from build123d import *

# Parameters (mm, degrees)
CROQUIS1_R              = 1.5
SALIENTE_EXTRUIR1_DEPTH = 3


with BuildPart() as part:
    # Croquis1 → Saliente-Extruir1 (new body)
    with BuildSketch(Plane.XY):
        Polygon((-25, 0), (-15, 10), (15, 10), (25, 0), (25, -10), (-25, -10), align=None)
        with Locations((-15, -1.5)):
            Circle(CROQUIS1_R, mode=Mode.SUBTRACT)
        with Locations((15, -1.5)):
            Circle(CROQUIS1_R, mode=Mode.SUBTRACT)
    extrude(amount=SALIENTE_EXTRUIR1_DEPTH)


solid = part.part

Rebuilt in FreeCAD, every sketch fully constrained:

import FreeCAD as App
import Part
import Sketcher


def add_polygon(sketch, points):
    """Adds a closed chain of lines whose ends are joined by coincident constraints."""
    first, n = sketch.GeometryCount, len(points)
    for a, b in zip(points, points[1:] + points[:1]):
        sketch.addGeometry(Part.LineSegment(App.Vector(*a, 0), App.Vector(*b, 0)), False)
    for i in range(n):
        sketch.addConstraint(Sketcher.Constraint("Coincident", first + i, 2, first + (i + 1) % n, 1))

doc = App.newDocument("Part")
body = doc.addObject("PartDesign::Body", "Body")

# Sketch on XY plane
sketch1 = body.newObject("Sketcher::SketchObject", "Sketch")
sketch1.AttachmentSupport = (doc.getObject("XY_Plane"), [""])
sketch1.MapMode = "FlatFace"
add_polygon(sketch1, [(-15, 10), (-25, 0), (-25, -10), (25, -10), (25, 0), (15, 10)])  # lines 0-5
sketch1.addGeometry(Part.Circle(App.Vector(15, -1.5, 0), App.Vector(0, 0, 1), 1.5), False)  # 6
sketch1.addGeometry(Part.Circle(App.Vector(-15, -1.5, 0), App.Vector(0, 0, 1), 1.5), False)  # 7
sketch1.addConstraint(Sketcher.Constraint("Vertical", 1))
sketch1.addConstraint(Sketcher.Constraint("Horizontal", 2))
sketch1.addConstraint(Sketcher.Constraint("Vertical", 3))
sketch1.addConstraint(Sketcher.Constraint("Horizontal", 5))
sketch1.addConstraint(Sketcher.Constraint("Equal", 6, 7))
sketch1.addConstraint(Sketcher.Constraint("Symmetric", 0, 2, 3, 2, -1, 1))
sketch1.addConstraint(Sketcher.Constraint("Symmetric", 6, 3, 7, 3, -2))
sketch1.addConstraint(Sketcher.Constraint("PointOnObject", 0, 2, -1))
sketch1.addConstraint(Sketcher.Constraint("Perpendicular", 0, 4))
sketch1.addConstraint(Sketcher.Constraint("Vertical", 6, 3, 4, 2))
sketch1.addConstraint(Sketcher.Constraint("Vertical", 7, 3, 5, 2))
sketch1.addConstraint(Sketcher.Constraint("Diameter", 6, 3.0))
sketch1.addConstraint(Sketcher.Constraint("DistanceX", 2, 1, 2, 2, 50.0))
sketch1.addConstraint(Sketcher.Constraint("DistanceX", 5, 2, 5, 1, 30.0))
sketch1.addConstraint(Sketcher.Constraint("DistanceY", 1, 2, 1, 1, 10.0))
sketch1.addConstraint(Sketcher.Constraint("DistanceY", 6, 3, -1, 1, 1.5))
pad1 = body.newObject("PartDesign::Pad", "Pad")
pad1.Profile = sketch1
pad1.Length = 3

doc.recompute()
